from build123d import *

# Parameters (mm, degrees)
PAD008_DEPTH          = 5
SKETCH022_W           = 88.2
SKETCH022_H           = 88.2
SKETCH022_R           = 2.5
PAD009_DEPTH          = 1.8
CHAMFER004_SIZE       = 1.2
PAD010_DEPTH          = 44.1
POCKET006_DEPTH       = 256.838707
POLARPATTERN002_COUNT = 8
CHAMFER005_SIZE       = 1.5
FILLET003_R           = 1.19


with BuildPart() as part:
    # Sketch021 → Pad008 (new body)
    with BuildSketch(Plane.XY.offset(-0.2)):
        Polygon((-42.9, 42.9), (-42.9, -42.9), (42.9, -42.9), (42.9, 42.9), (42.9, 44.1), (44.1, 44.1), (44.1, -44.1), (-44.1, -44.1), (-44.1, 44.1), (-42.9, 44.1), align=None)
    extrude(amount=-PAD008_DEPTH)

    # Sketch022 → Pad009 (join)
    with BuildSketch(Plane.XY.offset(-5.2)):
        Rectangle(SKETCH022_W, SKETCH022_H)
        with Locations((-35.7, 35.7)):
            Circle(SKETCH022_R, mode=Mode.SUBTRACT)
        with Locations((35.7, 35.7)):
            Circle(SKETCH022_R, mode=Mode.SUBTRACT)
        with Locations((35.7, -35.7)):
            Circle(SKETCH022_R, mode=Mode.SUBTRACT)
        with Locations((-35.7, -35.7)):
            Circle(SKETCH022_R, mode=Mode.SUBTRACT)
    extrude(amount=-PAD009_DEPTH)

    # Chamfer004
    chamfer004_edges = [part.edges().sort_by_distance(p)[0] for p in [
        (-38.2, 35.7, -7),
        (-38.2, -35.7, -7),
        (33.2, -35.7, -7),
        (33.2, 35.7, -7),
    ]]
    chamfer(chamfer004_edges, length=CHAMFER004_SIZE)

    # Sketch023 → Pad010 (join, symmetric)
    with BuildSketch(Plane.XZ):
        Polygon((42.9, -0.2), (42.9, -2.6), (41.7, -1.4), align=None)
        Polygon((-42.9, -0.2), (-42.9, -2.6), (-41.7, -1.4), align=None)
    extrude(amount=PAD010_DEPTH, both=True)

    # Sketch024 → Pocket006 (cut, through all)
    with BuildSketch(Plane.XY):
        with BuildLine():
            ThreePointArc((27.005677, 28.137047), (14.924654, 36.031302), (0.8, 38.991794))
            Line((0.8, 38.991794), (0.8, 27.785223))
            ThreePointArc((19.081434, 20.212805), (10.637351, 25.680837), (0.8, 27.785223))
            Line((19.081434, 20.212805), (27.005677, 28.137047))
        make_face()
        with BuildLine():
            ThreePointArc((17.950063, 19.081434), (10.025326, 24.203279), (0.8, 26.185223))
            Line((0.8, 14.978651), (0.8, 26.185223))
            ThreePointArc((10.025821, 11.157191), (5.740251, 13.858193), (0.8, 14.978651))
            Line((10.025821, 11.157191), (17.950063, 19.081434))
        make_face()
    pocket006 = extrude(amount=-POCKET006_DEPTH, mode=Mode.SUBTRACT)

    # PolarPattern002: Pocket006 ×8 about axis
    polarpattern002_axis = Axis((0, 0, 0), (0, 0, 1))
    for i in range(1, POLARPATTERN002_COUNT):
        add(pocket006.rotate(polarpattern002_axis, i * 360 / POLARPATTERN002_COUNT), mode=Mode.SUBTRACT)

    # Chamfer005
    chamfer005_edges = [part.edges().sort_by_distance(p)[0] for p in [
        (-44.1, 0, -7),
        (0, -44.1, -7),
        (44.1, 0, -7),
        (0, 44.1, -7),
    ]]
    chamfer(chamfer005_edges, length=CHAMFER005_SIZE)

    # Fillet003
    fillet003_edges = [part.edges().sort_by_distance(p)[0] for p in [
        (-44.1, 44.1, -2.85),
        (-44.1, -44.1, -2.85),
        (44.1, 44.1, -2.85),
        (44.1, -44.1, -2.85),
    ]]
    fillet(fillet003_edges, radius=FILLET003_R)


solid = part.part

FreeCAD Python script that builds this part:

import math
import FreeCAD as App
import Part
import Sketcher

V = App.Vector
Q = App.Units.Quantity


def edges_at(feature, points):
    """Names of the edges that pass closest to the given points."""
    edges = feature.Shape.Edges
    near = lambda p: min(range(len(edges)), key=lambda i: edges[i].distToShape(Part.Vertex(*p))[0])
    return sorted({f"Edge{near(p) + 1}" for p in points})

doc = App.newDocument("Part")
body = doc.addObject("PartDesign::Body", "Body")

# Sketch on XY plane
sketch1 = body.newObject("Sketcher::SketchObject", "Sketch")
sketch1.AttachmentSupport = (doc.getObject("XY_Plane"), [""])
sketch1.MapMode = "FlatFace"
sketch1.AttachmentOffset = App.Placement(V(0, 0, -0.2), App.Rotation())
sketch1.addGeometry(Part.LineSegment(V(-42.9, -42.9, 0), V(-42.9, 44.1, 0)), False)
sketch1.addGeometry(Part.LineSegment(V(-42.9, 44.1, 0), V(-44.1, 44.1, 0)), False)
sketch1.addGeometry(Part.LineSegment(V(-44.1, 44.1, 0), V(-44.1, -44.1, 0)), False)
sketch1.addGeometry(Part.LineSegment(V(-44.1, -44.1, 0), V(44.1, -44.1, 0)), False)
sketch1.addGeometry(Part.LineSegment(V(44.1, -44.1, 0), V(44.1, 44.1, 0)), False)
sketch1.addGeometry(Part.LineSegment(V(44.1, 44.1, 0), V(42.9, 44.1, 0)), False)
sketch1.addGeometry(Part.LineSegment(V(42.9, 44.1, 0), V(42.9, -42.9, 0)), False)
sketch1.addGeometry(Part.LineSegment(V(42.9, -42.9, 0), V(-42.9, -42.9, 0)), False)
sketch1.addConstraint(Sketcher.Constraint("Coincident", 0, 2, 1, 1))
sketch1.addConstraint(Sketcher.Constraint("Coincident", 1, 2, 2, 1))
sketch1.addConstraint(Sketcher.Constraint("Coincident", 2, 2, 3, 1))
sketch1.addConstraint(Sketcher.Constraint("Coincident", 3, 2, 4, 1))
sketch1.addConstraint(Sketcher.Constraint("Coincident", 4, 2, 5, 1))
sketch1.addConstraint(Sketcher.Constraint("Coincident", 5, 2, 6, 1))
sketch1.addConstraint(Sketcher.Constraint("Coincident", 6, 2, 7, 1))
sketch1.addConstraint(Sketcher.Constraint("Coincident", 7, 2, 0, 1))
sketch1.addConstraint(Sketcher.Constraint("Vertical", 0))
sketch1.addConstraint(Sketcher.Constraint("Horizontal", 1))
sketch1.addConstraint(Sketcher.Constraint("Vertical", 2))
sketch1.addConstraint(Sketcher.Constraint("Horizontal", 3))
sketch1.addConstraint(Sketcher.Constraint("Vertical", 4))
sketch1.addConstraint(Sketcher.Constraint("Horizontal", 5))
sketch1.addConstraint(Sketcher.Constraint("Vertical", 6))
sketch1.addConstraint(Sketcher.Constraint("Horizontal", 7))
sketch1.addConstraint(Sketcher.Constraint("Symmetric", 1, 2, 3, 2, -1, 1))
sketch1.addConstraint(Sketcher.Constraint("Symmetric", 0, 2, 5, 2, -2))
sketch1.addConstraint(Sketcher.Constraint("Equal", 3, 2))
sketch1.addConstraint(Sketcher.Constraint("DistanceY", 0, 1, 0, 2, Q("87 mm")))
sketch1.addConstraint(Sketcher.Constraint("DistanceX", 1, 2, 1, 1, Q("1.2 mm")))
sketch1.addConstraint(Sketcher.Constraint("DistanceX", 3, 1, 3, 2, Q("88.2 mm")))
pad1 = body.newObject("PartDesign::Pad", "Pad")
pad1.Profile = sketch1
pad1.Length = 5
pad1.Reversed = True

# Sketch on XY plane
sketch2 = body.newObject("Sketcher::SketchObject", "Sketch001")
sketch2.AttachmentSupport = (doc.getObject("XY_Plane"), [""])
sketch2.MapMode = "FlatFace"
sketch2.AttachmentOffset = App.Placement(V(0, 0, -5.2), App.Rotation())
sketch2.addGeometry(Part.LineSegment(V(-44.1, 44.1, 0), V(-44.1, -44.1, 0)), False)
sketch2.addGeometry(Part.LineSegment(V(-44.1, -44.1, 0), V(44.1, -44.1, 0)), False)
sketch2.addGeometry(Part.LineSegment(V(44.1, -44.1, 0), V(44.1, 44.1, 0)), False)
sketch2.addGeometry(Part.LineSegment(V(44.1, 44.1, 0), V(-44.1, 44.1, 0)), False)
sketch2.addGeometry(Part.Circle(V(-35.7, -35.7, 0), V(0, 0, 1), 2.5), False)
sketch2.addGeometry(Part.Circle(V(35.7, -35.7, 0), V(0, 0, 1), 2.5), False)
sketch2.addGeometry(Part.Circle(V(-35.7, 35.7, 0), V(0, 0, 1), 2.5), False)
sketch2.addGeometry(Part.Circle(V(35.7, 35.7, 0), V(0, 0, 1), 2.5), False)
sketch2.addConstraint(Sketcher.Constraint("Coincident", 0, 2, 1, 1))
sketch2.addConstraint(Sketcher.Constraint("Coincident", 1, 2, 2, 1))
sketch2.addConstraint(Sketcher.Constraint("Coincident", 2, 2, 3, 1))
sketch2.addConstraint(Sketcher.Constraint("Coincident", 3, 2, 0, 1))
sketch2.addConstraint(Sketcher.Constraint("Vertical", 0))
sketch2.addConstraint(Sketcher.Constraint("Horizontal", 1))
sketch2.addConstraint(Sketcher.Constraint("Vertical", 2))
sketch2.addConstraint(Sketcher.Constraint("Horizontal", 3))
sketch2.addConstraint(Sketcher.Constraint("Equal", 4, 5))
sketch2.addConstraint(Sketcher.Constraint("Equal", 5, 6))
sketch2.addConstraint(Sketcher.Constraint("Equal", 6, 7))
sketch2.addConstraint(Sketcher.Constraint("Symmetric", 5, 3, 6, 3, -1, 1))
sketch2.addConstraint(Sketcher.Constraint("Symmetric", 4, 3, 7, 3, -1, 1))
sketch2.addConstraint(Sketcher.Constraint("Symmetric", 0, 2, 2, 2, -1, 1))
sketch2.addConstraint(Sketcher.Constraint("Symmetric", 4, 3, 5, 3, -2))
sketch2.addConstraint(Sketcher.Constraint("Equal", 3, 0))
sketch2.addConstraint(Sketcher.Constraint("Diameter", 4, Q("5 mm")))
sketch2.addConstraint(Sketcher.Constraint("DistanceX", 1, 1, 1, 2, Q("88.2 mm")))
sketch2.addConstraint(Sketcher.Constraint("DistanceX", 4, 3, -1, 1, Q("35.7 mm")))
sketch2.addConstraint(Sketcher.Constraint("DistanceY", 4, 3, -1, 1, Q("35.7 mm")))
pad2 = body.newObject("PartDesign::Pad", "Pad001")
pad2.Profile = sketch2
pad2.Length = 1.8
pad2.Reversed = True
doc.recompute()

chamfer = body.newObject("PartDesign::Chamfer", "Chamfer")
chamfer.Base = (pad2, edges_at(pad2, [
    (-38.2, 35.7, -7),
    (-38.2, -35.7, -7),
    (33.2, -35.7, -7),
    (33.2, 35.7, -7),
]))
chamfer.Size = 1.2

# Sketch on XZ plane
sketch3 = body.newObject("Sketcher::SketchObject", "Sketch002")
sketch3.AttachmentSupport = (doc.getObject("XZ_Plane"), [""])
sketch3.MapMode = "FlatFace"
sketch3.addGeometry(Part.LineSegment(V(42.9, -2.6, 0), V(42.9, -0.2, 0)), False)
sketch3.addGeometry(Part.LineSegment(V(42.9, -0.2, 0), V(41.7, -1.4, 0)), False)
sketch3.addGeometry(Part.LineSegment(V(41.7, -1.4, 0), V(42.9, -2.6, 0)), False)
sketch3.addGeometry(Part.LineSegment(V(-42.9, -0.2, 0), V(-42.9, -2.6, 0)), False)
sketch3.addGeometry(Part.LineSegment(V(-42.9, -2.6, 0), V(-41.7, -1.4, 0)), False)
sketch3.addGeometry(Part.LineSegment(V(-41.7, -1.4, 0), V(-42.9, -0.2, 0)), False)
sketch3.addConstraint(Sketcher.Constraint("Coincident", 0, 2, 1, 1))
sketch3.addConstraint(Sketcher.Constraint("Coincident", 1, 2, 2, 1))
sketch3.addConstraint(Sketcher.Constraint("Coincident", 2, 2, 0, 1))
sketch3.addConstraint(Sketcher.Constraint("Coincident", 3, 2, 4, 1))
sketch3.addConstraint(Sketcher.Constraint("Coincident", 4, 2, 5, 1))
sketch3.addConstraint(Sketcher.Constraint("Coincident", 5, 2, 3, 1))
sketch3.addConstraint(Sketcher.Constraint("Vertical", 0))
sketch3.addConstraint(Sketcher.Constraint("Vertical", 3))
sketch3.addConstraint(Sketcher.Constraint("Symmetric", 2, 2, 3, 2, -2))
sketch3.addConstraint(Sketcher.Constraint("Symmetric", 1, 2, 4, 2, -2))
sketch3.addConstraint(Sketcher.Constraint("Perpendicular", 1, 2))
sketch3.addConstraint(Sketcher.Constraint("Perpendicular", 2, 4))
sketch3.addConstraint(Sketcher.Constraint("Perpendicular", 4, 5))
sketch3.addConstraint(Sketcher.Constraint("DistanceY", 0, 1, 0, 2, Q("2.4 mm")))
sketch3.addConstraint(Sketcher.Constraint("DistanceX", -1, 1, 0, 2, Q("42.9 mm")))
sketch3.addConstraint(Sketcher.Constraint("DistanceY", 0, 2, -1, 1, Q("0.2 mm")))
pad3 = body.newObject("PartDesign::Pad", "Pad002")
pad3.Profile = sketch3
pad3.Length = 88.2
pad3.Midplane = True

# Sketch on XY plane
sketch4 = body.newObject("Sketcher::SketchObject", "Sketch003")
sketch4.AttachmentSupport = (doc.getObject("XY_Plane"), [""])
sketch4.MapMode = "FlatFace"
sketch4.addGeometry(Part.ArcOfCircle(Part.Circle(V(0, 0, 0), V(0, 0, 1), 39), math.radians(46), math.radians(89)), False)
sketch4.addGeometry(Part.LineSegment(V(1, 39, 0), V(1, 28, 0)), False)
sketch4.addGeometry(Part.ArcOfCircle(Part.Circle(V(0, 0, 0), V(0, 0, 1), 28), math.radians(47), math.radians(88)), False)
sketch4.addGeometry(Part.LineSegment(V(19, 20, 0), V(27, 28, 0)), False)
sketch4.addGeometry(Part.ArcOfCircle(Part.Circle(V(0, 0, 0), V(0, 0, 1), 26), math.radians(47), math.radians(88)), False)
sketch4.addGeometry(Part.LineSegment(V(1, 26, 0), V(1, 15, 0)), False)
sketch4.addGeometry(Part.ArcOfCircle(Part.Circle(V(0, 0, 0), V(0, 0, 1), 15), math.radians(48), math.radians(87)), False)
sketch4.addGeometry(Part.LineSegment(V(10, 11, 0), V(18, 19, 0)), False)
sketch4.addConstraint(Sketcher.Constraint("Coincident", 0, 2, 1, 1))
sketch4.addConstraint(Sketcher.Constraint("Coincident", 1, 2, 2, 2))
sketch4.addConstraint(Sketcher.Constraint("Coincident", 2, 1, 3, 1))
sketch4.addConstraint(Sketcher.Constraint("Coincident", 3, 2, 0, 1))
sketch4.addConstraint(Sketcher.Constraint("Coincident", 4, 2, 5, 1))
sketch4.addConstraint(Sketcher.Constraint("Coincident", 5, 2, 6, 2))
sketch4.addConstraint(Sketcher.Constraint("Coincident", 6, 1, 7, 1))
sketch4.addConstraint(Sketcher.Constraint("Coincident", 7, 2, 4, 1))
sketch4.addConstraint(Sketcher.Constraint("Vertical", 1))
sketch4.addConstraint(Sketcher.Constraint("Vertical", 5))
sketch4.addConstraint(Sketcher.Constraint("Coincident", 0, 3, -1, 1))
sketch4.addConstraint(Sketcher.Constraint("Coincident", 2, 3, -1, 1))
sketch4.addConstraint(Sketcher.Constraint("Coincident", 4, 3, -1, 1))
sketch4.addConstraint(Sketcher.Constraint("Coincident", 6, 3, -1, 1))
sketch4.addConstraint(Sketcher.Constraint("Parallel", 3, 7))
sketch4.addConstraint(Sketcher.Constraint("Vertical", 1, 2, 4, 2))
sketch4.addConstraint(Sketcher.Constraint("Equal", 1, 5))
sketch4.addConstraint(Sketcher.Constraint("Equal", 3, 7))
sketch4.addConstraint(Sketcher.Constraint("Radius", 6, Q("14.999998 mm")))
sketch4.addConstraint(Sketcher.Constraint("Angle", 3, Q("44.999996 deg")))
sketch4.addConstraint(Sketcher.Constraint("DistanceX", -1, 1, 0, 2, Q("0.8 mm")))
sketch4.addConstraint(Sketcher.Constraint("DistanceY", 4, 2, 1, 2, Q("1.6 mm")))
sketch4.addConstraint(Sketcher.Constraint("Radius", 0, Q("38.999997 mm")))
sketch4.addConstraint(Sketcher.Constraint("DistanceY", 0, 3, 2, 1, Q("20.212802 mm")))
pocket1 = body.newObject("PartDesign::Pocket", "Pocket")
pocket1.Profile = sketch4
pocket1.Type = "ThroughAll"
doc.recompute()

polarpattern = body.newObject("PartDesign::PolarPattern", "PolarPattern")
polarpattern.Originals = [pocket1]
polarpattern.Axis = (doc.getObject("Z_Axis"), [""])
polarpattern.Angle = 360
polarpattern.Occurrences = 8
body.Tip = polarpattern
doc.recompute()

chamfer2 = body.newObject("PartDesign::Chamfer", "Chamfer001")
chamfer2.Base = (polarpattern, edges_at(polarpattern, [
    (-44.1, 0, -7),
    (0, -44.1, -7),
    (44.1, 0, -7),
    (0, 44.1, -7),
]))
chamfer2.Size = 1.5
doc.recompute()

fillet = body.newObject("PartDesign::Fillet", "Fillet")
fillet.Base = (chamfer2, edges_at(chamfer2, [
    (-44.1, 44.1, -2.85),
    (-44.1, -44.1, -2.85),
    (44.1, 44.1, -2.85),
    (44.1, -44.1, -2.85),
]))
fillet.Radius = 1.19

doc.recompute()
